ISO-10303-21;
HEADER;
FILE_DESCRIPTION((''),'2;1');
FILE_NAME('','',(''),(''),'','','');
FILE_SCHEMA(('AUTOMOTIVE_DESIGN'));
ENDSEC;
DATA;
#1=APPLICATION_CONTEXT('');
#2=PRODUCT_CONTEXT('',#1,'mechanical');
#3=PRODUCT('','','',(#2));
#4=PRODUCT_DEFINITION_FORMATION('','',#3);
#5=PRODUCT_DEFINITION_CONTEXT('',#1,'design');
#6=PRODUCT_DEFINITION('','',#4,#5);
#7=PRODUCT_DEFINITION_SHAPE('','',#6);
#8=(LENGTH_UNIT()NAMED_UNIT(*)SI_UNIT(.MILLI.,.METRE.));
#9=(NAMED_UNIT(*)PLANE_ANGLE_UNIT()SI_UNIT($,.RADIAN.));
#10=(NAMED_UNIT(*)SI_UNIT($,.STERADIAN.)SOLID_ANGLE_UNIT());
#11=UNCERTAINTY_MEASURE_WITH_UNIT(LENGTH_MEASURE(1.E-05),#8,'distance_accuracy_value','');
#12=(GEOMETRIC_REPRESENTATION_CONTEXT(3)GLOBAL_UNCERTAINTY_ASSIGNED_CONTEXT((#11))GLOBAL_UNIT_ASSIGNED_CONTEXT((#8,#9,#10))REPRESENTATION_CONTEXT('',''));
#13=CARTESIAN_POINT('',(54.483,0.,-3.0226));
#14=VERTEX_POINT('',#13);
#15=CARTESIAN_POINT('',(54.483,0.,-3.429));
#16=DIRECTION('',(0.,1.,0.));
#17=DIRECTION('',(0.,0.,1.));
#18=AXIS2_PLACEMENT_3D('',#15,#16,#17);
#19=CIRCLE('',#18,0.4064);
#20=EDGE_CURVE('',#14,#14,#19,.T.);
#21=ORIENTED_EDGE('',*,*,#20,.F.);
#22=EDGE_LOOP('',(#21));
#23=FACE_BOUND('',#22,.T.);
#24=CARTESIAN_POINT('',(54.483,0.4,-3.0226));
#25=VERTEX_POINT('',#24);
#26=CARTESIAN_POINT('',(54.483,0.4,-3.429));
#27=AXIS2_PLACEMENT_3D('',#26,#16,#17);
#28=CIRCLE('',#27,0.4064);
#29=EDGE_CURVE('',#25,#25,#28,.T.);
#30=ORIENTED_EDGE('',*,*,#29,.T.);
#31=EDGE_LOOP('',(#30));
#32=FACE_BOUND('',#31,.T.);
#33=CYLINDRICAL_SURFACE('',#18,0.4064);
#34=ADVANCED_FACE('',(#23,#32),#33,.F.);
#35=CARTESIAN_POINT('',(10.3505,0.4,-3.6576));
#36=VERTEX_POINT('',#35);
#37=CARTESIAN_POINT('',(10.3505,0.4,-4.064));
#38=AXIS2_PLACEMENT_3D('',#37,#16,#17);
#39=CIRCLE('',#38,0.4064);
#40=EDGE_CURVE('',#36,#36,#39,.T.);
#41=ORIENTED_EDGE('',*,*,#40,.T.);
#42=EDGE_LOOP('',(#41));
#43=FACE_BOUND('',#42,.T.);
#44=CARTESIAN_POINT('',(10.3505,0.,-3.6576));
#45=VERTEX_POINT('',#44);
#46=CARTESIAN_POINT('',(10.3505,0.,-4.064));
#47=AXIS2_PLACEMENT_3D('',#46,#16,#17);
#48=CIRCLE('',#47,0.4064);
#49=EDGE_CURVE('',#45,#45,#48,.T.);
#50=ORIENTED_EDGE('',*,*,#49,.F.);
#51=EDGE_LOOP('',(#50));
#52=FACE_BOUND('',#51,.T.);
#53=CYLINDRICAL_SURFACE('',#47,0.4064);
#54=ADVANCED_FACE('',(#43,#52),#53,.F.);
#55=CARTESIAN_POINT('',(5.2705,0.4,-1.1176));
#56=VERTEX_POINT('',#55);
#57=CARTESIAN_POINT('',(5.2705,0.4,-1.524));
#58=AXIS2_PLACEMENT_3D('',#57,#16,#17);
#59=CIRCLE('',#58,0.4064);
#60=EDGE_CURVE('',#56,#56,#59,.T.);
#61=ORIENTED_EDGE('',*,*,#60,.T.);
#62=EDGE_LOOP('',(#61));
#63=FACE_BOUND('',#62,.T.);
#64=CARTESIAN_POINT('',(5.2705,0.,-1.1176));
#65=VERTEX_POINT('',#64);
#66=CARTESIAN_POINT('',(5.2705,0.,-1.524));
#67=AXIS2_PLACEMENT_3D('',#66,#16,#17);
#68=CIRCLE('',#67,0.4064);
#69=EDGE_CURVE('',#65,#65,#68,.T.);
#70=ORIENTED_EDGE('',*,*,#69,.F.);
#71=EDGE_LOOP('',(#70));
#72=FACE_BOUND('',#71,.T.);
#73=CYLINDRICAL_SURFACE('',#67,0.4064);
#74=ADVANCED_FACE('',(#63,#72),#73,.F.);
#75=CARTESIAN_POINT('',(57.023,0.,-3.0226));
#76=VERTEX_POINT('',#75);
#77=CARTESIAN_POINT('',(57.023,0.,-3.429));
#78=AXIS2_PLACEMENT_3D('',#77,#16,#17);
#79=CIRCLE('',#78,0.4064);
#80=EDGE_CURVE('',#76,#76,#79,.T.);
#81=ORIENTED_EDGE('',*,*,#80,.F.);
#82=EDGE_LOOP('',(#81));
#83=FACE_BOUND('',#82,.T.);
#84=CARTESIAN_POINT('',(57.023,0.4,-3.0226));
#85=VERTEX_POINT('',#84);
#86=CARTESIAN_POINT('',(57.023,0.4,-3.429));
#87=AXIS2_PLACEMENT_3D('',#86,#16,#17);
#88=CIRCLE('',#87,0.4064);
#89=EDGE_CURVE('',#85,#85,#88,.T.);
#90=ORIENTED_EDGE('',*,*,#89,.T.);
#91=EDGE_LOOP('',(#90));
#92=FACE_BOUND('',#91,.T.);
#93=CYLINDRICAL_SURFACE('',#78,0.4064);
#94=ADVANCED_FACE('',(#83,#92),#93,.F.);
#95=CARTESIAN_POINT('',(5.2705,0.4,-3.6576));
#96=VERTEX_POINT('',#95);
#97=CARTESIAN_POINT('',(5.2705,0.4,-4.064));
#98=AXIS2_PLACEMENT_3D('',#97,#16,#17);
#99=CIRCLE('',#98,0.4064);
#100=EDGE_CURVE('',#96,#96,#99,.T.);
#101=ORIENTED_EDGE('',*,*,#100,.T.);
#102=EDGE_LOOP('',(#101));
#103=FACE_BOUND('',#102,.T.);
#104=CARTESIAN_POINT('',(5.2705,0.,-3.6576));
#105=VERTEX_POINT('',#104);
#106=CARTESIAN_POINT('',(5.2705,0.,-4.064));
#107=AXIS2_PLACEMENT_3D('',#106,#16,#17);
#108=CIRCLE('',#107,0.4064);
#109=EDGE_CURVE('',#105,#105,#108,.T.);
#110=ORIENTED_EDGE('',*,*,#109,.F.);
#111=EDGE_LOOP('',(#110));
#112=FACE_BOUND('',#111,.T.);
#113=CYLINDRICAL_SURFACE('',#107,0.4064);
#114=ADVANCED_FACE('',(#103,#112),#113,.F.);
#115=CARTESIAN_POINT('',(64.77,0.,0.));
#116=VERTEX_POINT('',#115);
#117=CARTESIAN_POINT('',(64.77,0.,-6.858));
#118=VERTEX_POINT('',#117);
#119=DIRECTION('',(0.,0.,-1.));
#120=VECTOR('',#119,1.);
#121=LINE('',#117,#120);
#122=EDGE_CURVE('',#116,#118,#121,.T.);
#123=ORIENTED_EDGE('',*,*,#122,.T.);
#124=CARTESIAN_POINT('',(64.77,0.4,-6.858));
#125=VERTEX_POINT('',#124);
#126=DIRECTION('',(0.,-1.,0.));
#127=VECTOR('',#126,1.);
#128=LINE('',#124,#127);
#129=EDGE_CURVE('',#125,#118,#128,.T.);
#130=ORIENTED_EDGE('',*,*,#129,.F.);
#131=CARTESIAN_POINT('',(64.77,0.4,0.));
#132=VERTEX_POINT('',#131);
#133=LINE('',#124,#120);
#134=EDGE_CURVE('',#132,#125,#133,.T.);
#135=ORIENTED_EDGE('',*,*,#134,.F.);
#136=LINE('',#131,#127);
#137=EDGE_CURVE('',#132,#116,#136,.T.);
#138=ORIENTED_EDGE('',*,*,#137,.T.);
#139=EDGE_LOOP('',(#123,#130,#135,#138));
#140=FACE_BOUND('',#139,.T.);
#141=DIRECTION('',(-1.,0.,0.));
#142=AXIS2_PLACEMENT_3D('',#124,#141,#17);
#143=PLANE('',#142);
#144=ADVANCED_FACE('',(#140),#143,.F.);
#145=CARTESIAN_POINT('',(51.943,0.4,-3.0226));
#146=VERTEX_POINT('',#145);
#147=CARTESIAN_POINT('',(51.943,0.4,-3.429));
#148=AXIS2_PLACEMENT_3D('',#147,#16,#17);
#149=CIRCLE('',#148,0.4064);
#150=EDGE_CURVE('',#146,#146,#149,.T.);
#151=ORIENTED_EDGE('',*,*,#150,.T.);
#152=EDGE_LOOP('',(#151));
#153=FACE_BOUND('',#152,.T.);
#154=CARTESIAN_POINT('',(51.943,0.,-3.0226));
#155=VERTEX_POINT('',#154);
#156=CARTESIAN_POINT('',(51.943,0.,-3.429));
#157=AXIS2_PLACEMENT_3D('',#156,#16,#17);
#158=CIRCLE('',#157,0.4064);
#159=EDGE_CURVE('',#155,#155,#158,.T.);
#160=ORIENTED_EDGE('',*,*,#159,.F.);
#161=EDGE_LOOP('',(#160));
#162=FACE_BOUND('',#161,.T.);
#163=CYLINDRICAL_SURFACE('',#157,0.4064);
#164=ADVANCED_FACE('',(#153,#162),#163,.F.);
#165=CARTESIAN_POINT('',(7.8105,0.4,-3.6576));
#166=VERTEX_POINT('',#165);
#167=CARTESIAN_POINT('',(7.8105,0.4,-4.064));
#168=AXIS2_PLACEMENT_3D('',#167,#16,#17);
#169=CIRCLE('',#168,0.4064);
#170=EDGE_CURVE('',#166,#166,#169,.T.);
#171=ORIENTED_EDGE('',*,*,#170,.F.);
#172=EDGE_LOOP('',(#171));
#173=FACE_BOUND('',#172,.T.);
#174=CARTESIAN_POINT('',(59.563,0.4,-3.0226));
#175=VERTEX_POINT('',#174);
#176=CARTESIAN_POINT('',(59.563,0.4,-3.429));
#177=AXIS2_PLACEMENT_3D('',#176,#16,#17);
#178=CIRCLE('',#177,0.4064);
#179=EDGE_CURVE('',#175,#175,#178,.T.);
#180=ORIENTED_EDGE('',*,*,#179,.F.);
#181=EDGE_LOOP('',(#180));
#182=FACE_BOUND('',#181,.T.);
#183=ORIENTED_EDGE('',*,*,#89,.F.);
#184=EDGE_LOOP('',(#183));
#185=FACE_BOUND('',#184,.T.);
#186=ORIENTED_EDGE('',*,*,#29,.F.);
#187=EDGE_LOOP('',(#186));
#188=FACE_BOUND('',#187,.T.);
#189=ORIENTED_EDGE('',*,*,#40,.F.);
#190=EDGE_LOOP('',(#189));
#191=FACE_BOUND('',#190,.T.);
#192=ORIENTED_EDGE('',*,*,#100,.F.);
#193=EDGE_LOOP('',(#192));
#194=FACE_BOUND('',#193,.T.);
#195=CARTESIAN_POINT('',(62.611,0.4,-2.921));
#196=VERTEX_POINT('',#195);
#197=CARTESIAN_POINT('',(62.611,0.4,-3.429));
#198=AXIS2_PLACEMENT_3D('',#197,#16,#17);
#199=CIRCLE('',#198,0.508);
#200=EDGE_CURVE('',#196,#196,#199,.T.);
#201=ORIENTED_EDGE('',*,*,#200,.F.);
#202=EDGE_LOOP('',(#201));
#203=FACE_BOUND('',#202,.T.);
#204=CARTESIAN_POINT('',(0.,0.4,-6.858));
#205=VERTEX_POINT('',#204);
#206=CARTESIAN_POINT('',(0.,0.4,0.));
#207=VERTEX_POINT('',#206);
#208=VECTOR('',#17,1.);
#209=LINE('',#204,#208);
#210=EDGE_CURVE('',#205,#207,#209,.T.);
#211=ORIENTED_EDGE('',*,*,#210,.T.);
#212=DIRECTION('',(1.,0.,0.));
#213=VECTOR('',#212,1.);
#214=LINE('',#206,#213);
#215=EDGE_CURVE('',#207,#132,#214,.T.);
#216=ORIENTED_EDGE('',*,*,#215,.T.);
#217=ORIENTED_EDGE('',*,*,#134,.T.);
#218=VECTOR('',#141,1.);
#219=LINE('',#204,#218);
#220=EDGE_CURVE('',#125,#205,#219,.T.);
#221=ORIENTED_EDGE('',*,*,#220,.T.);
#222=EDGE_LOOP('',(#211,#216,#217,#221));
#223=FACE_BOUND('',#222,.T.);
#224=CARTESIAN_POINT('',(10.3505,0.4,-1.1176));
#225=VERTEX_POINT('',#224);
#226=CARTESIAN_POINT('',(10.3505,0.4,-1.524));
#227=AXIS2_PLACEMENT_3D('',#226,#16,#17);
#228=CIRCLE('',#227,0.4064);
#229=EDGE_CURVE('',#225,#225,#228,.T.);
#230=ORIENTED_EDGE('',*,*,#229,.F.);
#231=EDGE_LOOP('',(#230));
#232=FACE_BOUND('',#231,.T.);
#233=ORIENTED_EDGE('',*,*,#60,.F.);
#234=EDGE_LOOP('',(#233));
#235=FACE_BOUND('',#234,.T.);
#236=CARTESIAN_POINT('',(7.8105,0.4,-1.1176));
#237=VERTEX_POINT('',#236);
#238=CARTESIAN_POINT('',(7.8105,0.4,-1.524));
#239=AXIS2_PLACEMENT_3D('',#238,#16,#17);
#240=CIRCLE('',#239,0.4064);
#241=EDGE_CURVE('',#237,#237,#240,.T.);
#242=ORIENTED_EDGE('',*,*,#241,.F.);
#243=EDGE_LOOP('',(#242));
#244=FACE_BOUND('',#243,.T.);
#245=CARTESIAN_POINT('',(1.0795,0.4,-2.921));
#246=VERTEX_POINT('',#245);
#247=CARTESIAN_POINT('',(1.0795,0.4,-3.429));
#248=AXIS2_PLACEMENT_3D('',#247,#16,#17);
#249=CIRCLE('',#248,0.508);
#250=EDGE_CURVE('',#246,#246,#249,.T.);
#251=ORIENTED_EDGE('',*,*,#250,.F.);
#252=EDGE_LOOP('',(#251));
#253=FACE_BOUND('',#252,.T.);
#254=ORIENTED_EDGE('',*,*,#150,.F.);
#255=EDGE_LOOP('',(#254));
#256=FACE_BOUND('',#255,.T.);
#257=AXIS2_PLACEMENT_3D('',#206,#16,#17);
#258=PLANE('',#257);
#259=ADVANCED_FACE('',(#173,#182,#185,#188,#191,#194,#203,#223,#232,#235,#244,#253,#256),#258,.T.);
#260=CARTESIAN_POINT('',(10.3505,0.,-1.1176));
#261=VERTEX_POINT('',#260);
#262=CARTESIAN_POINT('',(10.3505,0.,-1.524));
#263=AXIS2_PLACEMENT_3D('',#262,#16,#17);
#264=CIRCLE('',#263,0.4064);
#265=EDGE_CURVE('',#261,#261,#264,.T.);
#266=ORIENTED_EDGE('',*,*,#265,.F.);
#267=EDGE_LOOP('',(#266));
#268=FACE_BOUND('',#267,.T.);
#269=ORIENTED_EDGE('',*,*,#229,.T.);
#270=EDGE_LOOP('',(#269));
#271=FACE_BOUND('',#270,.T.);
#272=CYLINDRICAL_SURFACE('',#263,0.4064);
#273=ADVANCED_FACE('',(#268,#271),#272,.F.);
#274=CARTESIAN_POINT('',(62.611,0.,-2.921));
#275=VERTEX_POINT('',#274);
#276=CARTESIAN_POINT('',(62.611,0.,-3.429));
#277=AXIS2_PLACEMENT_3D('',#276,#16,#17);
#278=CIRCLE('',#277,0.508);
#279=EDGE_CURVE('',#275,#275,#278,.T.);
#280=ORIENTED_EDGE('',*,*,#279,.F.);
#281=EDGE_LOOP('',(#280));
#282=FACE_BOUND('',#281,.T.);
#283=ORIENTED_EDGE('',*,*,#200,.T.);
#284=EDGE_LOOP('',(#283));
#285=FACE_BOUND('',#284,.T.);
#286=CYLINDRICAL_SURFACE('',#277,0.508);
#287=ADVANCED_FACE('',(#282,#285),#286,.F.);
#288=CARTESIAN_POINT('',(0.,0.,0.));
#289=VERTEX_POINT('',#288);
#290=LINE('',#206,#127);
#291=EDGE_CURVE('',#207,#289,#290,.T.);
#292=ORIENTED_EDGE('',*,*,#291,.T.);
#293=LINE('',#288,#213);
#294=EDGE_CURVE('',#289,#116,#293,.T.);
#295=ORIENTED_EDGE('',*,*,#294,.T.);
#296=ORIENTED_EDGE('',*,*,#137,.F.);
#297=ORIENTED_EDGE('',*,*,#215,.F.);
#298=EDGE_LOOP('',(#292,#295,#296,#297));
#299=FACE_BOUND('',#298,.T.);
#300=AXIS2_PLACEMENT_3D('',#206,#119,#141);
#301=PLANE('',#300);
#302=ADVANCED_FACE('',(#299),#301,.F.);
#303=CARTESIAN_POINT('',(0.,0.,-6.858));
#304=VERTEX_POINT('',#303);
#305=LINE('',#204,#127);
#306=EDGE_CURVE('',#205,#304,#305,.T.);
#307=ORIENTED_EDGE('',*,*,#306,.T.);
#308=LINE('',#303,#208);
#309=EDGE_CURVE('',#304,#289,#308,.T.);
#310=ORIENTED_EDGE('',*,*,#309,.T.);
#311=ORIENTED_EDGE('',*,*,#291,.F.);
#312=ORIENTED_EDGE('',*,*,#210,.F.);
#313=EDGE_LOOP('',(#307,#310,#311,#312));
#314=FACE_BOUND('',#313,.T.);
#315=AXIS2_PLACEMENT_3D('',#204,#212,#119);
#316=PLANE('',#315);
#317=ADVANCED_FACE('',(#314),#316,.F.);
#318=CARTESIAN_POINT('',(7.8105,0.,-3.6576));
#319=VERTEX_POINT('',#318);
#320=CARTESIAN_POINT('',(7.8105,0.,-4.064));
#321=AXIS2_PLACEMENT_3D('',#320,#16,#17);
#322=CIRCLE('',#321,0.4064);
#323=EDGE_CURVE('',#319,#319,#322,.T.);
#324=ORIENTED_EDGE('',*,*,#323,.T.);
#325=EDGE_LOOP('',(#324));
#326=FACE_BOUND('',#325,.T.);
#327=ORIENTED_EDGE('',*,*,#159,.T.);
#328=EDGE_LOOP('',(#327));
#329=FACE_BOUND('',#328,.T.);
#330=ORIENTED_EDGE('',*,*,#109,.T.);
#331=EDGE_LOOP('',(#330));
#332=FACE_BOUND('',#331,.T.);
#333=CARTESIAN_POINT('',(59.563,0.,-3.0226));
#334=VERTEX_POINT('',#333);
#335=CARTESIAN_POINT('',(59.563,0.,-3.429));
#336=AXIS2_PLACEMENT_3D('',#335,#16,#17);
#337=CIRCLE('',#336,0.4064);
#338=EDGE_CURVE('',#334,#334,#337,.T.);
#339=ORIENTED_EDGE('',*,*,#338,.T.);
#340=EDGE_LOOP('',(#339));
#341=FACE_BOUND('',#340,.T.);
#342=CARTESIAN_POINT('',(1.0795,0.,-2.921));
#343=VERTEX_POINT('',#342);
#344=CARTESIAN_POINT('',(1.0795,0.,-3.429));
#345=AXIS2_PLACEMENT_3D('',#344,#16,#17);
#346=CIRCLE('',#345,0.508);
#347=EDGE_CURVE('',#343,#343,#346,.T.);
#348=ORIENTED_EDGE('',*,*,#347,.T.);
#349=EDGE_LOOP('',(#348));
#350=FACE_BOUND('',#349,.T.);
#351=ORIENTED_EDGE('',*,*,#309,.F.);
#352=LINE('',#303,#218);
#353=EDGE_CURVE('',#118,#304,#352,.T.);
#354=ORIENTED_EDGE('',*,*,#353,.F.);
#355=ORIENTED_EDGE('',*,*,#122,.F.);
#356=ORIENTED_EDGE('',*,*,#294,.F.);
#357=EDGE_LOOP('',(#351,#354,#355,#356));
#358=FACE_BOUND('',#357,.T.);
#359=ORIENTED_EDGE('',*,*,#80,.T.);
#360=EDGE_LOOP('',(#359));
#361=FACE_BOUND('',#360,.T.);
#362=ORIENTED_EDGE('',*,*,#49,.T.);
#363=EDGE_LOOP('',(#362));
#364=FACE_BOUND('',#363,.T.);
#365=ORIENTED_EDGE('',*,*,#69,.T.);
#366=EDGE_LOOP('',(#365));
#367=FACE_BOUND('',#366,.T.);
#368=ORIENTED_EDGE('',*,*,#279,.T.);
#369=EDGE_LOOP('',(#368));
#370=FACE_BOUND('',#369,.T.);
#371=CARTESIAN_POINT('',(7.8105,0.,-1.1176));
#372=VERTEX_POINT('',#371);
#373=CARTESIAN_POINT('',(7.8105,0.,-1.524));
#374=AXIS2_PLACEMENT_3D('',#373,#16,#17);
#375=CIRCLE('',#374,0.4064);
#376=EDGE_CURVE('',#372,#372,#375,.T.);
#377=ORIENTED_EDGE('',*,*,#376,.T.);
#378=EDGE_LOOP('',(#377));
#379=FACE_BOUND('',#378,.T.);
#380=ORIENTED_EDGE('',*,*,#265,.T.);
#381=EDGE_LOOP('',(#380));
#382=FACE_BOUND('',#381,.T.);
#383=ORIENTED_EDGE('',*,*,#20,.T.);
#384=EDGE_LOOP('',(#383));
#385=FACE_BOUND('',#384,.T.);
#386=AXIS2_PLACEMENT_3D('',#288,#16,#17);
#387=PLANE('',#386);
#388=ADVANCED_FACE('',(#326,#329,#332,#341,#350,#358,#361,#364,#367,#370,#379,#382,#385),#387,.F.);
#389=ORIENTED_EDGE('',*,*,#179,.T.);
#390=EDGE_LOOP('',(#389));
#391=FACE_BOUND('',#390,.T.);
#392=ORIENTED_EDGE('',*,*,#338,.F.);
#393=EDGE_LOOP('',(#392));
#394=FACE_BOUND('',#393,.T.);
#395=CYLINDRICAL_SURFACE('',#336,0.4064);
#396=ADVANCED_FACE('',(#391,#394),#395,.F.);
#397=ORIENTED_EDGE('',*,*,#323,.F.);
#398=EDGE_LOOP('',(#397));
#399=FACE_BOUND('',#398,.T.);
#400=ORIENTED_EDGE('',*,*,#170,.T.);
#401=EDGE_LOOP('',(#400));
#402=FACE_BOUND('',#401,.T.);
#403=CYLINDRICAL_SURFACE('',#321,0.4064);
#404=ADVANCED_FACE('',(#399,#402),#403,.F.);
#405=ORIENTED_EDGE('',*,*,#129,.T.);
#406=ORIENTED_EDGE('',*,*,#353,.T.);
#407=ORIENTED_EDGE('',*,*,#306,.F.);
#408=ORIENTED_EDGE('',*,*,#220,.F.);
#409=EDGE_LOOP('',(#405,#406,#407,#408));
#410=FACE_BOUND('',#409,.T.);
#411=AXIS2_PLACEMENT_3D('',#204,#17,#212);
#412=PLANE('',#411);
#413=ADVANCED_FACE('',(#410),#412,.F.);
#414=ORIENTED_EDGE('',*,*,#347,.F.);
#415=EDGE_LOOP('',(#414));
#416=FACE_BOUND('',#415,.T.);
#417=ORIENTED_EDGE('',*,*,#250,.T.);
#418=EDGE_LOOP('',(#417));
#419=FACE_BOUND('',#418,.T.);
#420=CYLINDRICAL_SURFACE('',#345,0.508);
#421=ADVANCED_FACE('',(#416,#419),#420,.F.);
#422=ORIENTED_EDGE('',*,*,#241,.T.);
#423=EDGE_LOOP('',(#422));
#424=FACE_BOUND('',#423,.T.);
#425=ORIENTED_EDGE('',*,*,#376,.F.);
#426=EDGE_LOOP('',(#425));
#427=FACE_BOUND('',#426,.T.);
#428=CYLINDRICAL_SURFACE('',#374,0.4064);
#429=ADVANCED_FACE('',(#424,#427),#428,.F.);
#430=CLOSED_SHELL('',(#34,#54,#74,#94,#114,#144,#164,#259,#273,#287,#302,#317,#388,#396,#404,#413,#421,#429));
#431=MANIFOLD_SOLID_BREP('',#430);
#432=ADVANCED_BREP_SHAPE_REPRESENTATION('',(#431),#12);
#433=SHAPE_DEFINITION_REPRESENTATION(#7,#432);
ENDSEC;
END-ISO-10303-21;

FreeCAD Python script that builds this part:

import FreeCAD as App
import Part
import Sketcher
from FreeCAD import Vector
Q = App.Units.Quantity

doc = App.newDocument("Part")
body = doc.addObject("PartDesign::Body", "Body")

# Sketch on XZ plane
sketch1 = doc.addObject("Sketcher::SketchObject", "Sketch")
body.addObject(sketch1)
sketch1.AttachmentSupport = (doc.XZ_Plane, [""])
sketch1.MapMode = "FlatFace"
sketch1.addGeometry(Part.LineSegment(Vector(0, -6.858, 0), Vector(0, 0, 0)), False)
sketch1.addGeometry(Part.LineSegment(Vector(0, 0, 0), Vector(64.77, 0, 0)), False)
sketch1.addGeometry(Part.LineSegment(Vector(64.77, 0, 0), Vector(64.77, -6.858, 0)), False)
sketch1.addGeometry(Part.LineSegment(Vector(64.77, -6.858, 0), Vector(0, -6.858, 0)), False)
sketch1.addConstraint(Sketcher.Constraint("Coincident", 0, 2, 1, 1))
sketch1.addConstraint(Sketcher.Constraint("Coincident", 1, 2, 2, 1))
sketch1.addConstraint(Sketcher.Constraint("Coincident", 2, 2, 3, 1))
sketch1.addConstraint(Sketcher.Constraint("Coincident", 3, 2, 0, 1))
sketch1.addConstraint(Sketcher.Constraint("Vertical", 0))
sketch1.addConstraint(Sketcher.Constraint("Horizontal", 1))
sketch1.addConstraint(Sketcher.Constraint("Vertical", 2))
sketch1.addConstraint(Sketcher.Constraint("Horizontal", 3))
sketch1.addConstraint(Sketcher.Constraint("Coincident", 0, 2, -1, 1))
sketch1.addConstraint(Sketcher.Constraint("DistanceX", 1, 1, 1, 2, Q("2.55 in")))
sketch1.addConstraint(Sketcher.Constraint("DistanceY", 0, 1, 0, 2, Q("0.27 in")))
pad1 = doc.addObject("PartDesign::Pad", "Pad")
body.addObject(pad1)
pad1.Profile = sketch1
pad1.Length = 0.4
pad1.Reversed = True

# Sketch on XZ plane
sketch2 = doc.addObject("Sketcher::SketchObject", "Sketch001")
body.addObject(sketch2)
sketch2.AttachmentSupport = (doc.XZ_Plane, [""])
sketch2.MapMode = "FlatFace"
sketch2.AttachmentOffset = App.Placement(Vector(0, 0, -0.4), App.Rotation())
sketch2.addGeometry(Part.Circle(Vector(51.943, -3.429, 0), Vector(0, 0, 1), 0.4064), False)
sketch2.addGeometry(Part.Circle(Vector(54.483, -3.429, 0), Vector(0, 0, 1), 0.4064), False)
sketch2.addGeometry(Part.Circle(Vector(57.023, -3.429, 0), Vector(0, 0, 1), 0.4064), False)
sketch2.addGeometry(Part.Circle(Vector(59.563, -3.429, 0), Vector(0, 0, 1), 0.4064), False)
sketch2.addGeometry(Part.Circle(Vector(62.611, -3.429, 0), Vector(0, 0, 1), 0.508), False)
sketch2.addGeometry(Part.Circle(Vector(10.3505, -4.064, 0), Vector(0, 0, 1), 0.4064), False)
sketch2.addGeometry(Part.Circle(Vector(7.8105, -4.064, 0), Vector(0, 0, 1), 0.4064), False)
sketch2.addGeometry(Part.Circle(Vector(5.2705, -4.064, 0), Vector(0, 0, 1), 0.4064), False)
sketch2.addGeometry(Part.Circle(Vector(7.8105, -1.524, 0), Vector(0, 0, 1), 0.4064), False)
sketch2.addGeometry(Part.Circle(Vector(5.2705, -1.524, 0), Vector(0, 0, 1), 0.4064), False)
sketch2.addGeometry(Part.Circle(Vector(10.3505, -1.524, 0), Vector(0, 0, 1), 0.4064), False)
sketch2.addGeometry(Part.Circle(Vector(1.0795, -3.429, 0), Vector(0, 0, 1), 0.508), False)
sketch2.addConstraint(Sketcher.Constraint("Equal", 0, 1))
sketch2.addConstraint(Sketcher.Constraint("Equal", 1, 2))
sketch2.addConstraint(Sketcher.Constraint("Equal", 2, 3))
sketch2.addConstraint(Sketcher.Constraint("Equal", 3, 5))
sketch2.addConstraint(Sketcher.Constraint("Equal", 5, 6))
sketch2.addConstraint(Sketcher.Constraint("Equal", 6, 7))
sketch2.addConstraint(Sketcher.Constraint("Equal", 7, 8))
sketch2.addConstraint(Sketcher.Constraint("Equal", 8, 9))
sketch2.addConstraint(Sketcher.Constraint("Equal", 9, 10))
sketch2.addConstraint(Sketcher.Constraint("Equal", 4, 11))
sketch2.addConstraint(Sketcher.Constraint("Horizontal", 0, 3, 1, 3))
sketch2.addConstraint(Sketcher.Constraint("Horizontal", 1, 3, 2, 3))
sketch2.addConstraint(Sketcher.Constraint("Horizontal", 2, 3, 3, 3))
sketch2.addConstraint(Sketcher.Constraint("Horizontal", 3, 3, 4, 3))
sketch2.addConstraint(Sketcher.Constraint("Horizontal", 5, 3, 6, 3))
sketch2.addConstraint(Sketcher.Constraint("Horizontal", 6, 3, 7, 3))
sketch2.addConstraint(Sketcher.Constraint("Horizontal", 8, 3, 9, 3))
sketch2.addConstraint(Sketcher.Constraint("Horizontal", 9, 3, 10, 3))
sketch2.addConstraint(Sketcher.Constraint("Horizontal", 4, 3, 11, 3))
sketch2.addConstraint(Sketcher.Constraint("Vertical", 6, 3, 8, 3))
sketch2.addConstraint(Sketcher.Constraint("Vertical", 7, 3, 9, 3))
sketch2.addConstraint(Sketcher.Constraint("Vertical", 5, 3, 10, 3))
sketch2.addConstraint(Sketcher.Constraint("Diameter", 4, Q("0.04 in")))
sketch2.addConstraint(Sketcher.Constraint("Diameter", 0, Q("0.032 in")))
sketch2.addConstraint(Sketcher.Constraint("DistanceX", 0, 3, 1, 3, Q("0.1 in")))
sketch2.addConstraint(Sketcher.Constraint("DistanceX", 1, 3, 2, 3, Q("0.1 in")))
sketch2.addConstraint(Sketcher.Constraint("DistanceX", 2, 3, 3, 3, Q("0.1 in")))
sketch2.addConstraint(Sketcher.Constraint("DistanceX", 6, 3, 5, 3, Q("0.1 in")))
sketch2.addConstraint(Sketcher.Constraint("DistanceX", 7, 3, 6, 3, Q("0.1 in")))
sketch2.addConstraint(Sketcher.Constraint("DistanceY", 6, 3, 8, 3, Q("0.1 in")))
sketch2.addConstraint(Sketcher.Constraint("DistanceY", 5, 3, -1, 1, Q("0.16 in")))
sketch2.addConstraint(Sketcher.Constraint("DistanceX", 3, 3, 4, 3, Q("0.12 in")))
sketch2.addConstraint(Sketcher.Constraint("DistanceX", -1, 1, 0, 3, Q("2.045 in")))
sketch2.addConstraint(Sketcher.Constraint("DistanceY", 0, 3, -1, 1, Q("0.135 in")))
sketch2.addConstraint(Sketcher.Constraint("DistanceX", 5, 3, 3, 3, Q("1.9375 in")))
sketch2.addConstraint(Sketcher.Constraint("DistanceX", 11, 3, 7, 3, Q("0.165 in")))
pocket1 = doc.addObject("PartDesign::Pocket", "Pocket")
body.addObject(pocket1)
pocket1.Profile = sketch2
pocket1.Type = "ThroughAll"
pocket1.Reversed = True

doc.recompute()
